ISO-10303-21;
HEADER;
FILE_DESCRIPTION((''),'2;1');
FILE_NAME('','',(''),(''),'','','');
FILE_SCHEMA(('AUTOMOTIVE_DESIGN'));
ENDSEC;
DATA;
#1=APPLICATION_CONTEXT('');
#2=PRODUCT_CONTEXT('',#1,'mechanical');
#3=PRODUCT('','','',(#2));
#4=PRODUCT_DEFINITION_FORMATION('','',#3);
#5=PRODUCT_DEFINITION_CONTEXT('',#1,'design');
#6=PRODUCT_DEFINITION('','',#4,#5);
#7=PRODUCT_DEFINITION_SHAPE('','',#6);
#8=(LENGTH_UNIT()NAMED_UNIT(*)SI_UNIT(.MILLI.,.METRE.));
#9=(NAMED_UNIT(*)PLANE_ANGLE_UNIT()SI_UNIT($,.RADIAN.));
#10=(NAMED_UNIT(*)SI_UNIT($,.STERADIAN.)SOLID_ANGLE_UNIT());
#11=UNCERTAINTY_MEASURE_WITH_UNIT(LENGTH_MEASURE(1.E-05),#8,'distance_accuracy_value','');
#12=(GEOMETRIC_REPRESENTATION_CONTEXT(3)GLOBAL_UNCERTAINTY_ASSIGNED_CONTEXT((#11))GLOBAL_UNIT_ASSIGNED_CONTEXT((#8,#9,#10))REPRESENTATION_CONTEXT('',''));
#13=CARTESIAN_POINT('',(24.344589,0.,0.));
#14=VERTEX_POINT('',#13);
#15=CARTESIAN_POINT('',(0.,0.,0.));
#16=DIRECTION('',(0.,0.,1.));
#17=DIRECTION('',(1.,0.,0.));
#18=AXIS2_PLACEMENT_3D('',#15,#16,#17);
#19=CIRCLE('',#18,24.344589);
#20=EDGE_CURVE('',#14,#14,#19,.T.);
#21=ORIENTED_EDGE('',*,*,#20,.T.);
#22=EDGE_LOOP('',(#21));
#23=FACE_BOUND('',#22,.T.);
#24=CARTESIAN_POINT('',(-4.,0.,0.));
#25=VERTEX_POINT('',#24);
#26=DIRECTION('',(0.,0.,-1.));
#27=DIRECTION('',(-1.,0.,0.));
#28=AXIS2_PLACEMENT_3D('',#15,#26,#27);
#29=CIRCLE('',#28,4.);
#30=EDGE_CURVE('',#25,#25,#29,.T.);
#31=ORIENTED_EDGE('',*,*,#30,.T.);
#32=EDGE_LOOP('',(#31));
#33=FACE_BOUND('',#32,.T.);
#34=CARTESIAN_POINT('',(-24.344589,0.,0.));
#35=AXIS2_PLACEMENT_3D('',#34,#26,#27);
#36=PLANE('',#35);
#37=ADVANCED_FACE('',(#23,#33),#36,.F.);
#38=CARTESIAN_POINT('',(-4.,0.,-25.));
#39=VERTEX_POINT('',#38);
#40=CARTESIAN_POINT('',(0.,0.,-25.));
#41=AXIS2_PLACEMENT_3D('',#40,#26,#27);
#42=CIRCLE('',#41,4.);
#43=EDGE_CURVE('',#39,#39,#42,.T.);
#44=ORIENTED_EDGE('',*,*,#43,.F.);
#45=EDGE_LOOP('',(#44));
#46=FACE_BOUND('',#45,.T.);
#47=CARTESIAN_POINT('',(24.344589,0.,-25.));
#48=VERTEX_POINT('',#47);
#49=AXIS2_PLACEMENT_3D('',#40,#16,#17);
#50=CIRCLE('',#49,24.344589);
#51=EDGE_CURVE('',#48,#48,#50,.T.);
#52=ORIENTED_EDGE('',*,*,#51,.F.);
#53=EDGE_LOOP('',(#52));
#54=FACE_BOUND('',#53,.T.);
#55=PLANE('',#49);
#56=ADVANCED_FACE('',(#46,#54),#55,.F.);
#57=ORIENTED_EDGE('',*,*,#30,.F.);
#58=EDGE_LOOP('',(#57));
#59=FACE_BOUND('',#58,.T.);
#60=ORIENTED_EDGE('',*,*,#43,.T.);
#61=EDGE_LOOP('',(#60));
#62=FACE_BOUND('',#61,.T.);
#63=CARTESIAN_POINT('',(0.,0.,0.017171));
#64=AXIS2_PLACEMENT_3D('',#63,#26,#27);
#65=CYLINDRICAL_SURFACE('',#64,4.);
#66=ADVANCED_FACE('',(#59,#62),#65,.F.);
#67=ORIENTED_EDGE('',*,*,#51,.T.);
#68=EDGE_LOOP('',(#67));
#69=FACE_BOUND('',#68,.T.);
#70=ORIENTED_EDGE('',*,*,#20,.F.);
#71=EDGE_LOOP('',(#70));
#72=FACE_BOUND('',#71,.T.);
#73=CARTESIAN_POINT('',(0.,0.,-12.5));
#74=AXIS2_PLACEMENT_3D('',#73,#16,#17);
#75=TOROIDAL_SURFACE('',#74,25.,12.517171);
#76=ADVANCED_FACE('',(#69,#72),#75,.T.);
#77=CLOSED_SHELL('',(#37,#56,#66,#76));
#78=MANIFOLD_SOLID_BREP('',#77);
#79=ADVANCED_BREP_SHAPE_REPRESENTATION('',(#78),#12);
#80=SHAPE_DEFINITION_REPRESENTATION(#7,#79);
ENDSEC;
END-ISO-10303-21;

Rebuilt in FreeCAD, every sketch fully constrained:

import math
import FreeCAD as App
import Part
import Sketcher
Q = App.Units.Quantity

doc = App.newDocument("Part")
params = doc.addObject("Spreadsheet::Sheet", "Params")
for row, (alias, value) in enumerate([
    ("sketch1_height", "25 mm"),
    ("revolution_angle", "360 deg"),
    ("sketch2_diameter", "8 mm"),
], start=1):
    params.set(f"A{row}", alias)
    params.set(f"B{row}", "=" + value)
    params.setAlias(f"B{row}", alias)

body = doc.addObject("PartDesign::Body", "Body")

sketch1 = body.newObject("Sketcher::SketchObject", "Sketch")
sketch1.AttachmentSupport = (doc.getObject("XZ_Plane"), [""])
sketch1.MapMode = "FlatFace"
sketch1.addGeometry([
    Part.LineSegment(App.Vector(0, 0, 0), App.Vector(0, -25, 0)),
    Part.LineSegment(App.Vector(0, -25, 0), App.Vector(-24.344589, -25, 0)),
    Part.ArcOfCircle(Part.Circle(App.Vector(-25, -12.5, 0), App.Vector(0, 0, 1), 12.517171), math.radians(86.998568), math.radians(273.001432)),
    Part.LineSegment(App.Vector(-24.344589, 0, 0), App.Vector(0, 0, 0)),
], False)
sketch1.addConstraint([
    Sketcher.Constraint("Coincident", 0, 2, 1, 1),
    Sketcher.Constraint("Coincident", 1, 2, 2, 2),
    Sketcher.Constraint("Coincident", 2, 1, 3, 1),
    Sketcher.Constraint("Coincident", 3, 2, 0, 1),
    Sketcher.Constraint("Vertical", 0),
    Sketcher.Constraint("Horizontal", 1),
    Sketcher.Constraint("Horizontal", 3),
    Sketcher.Constraint("Coincident", 3, 2, -1, 1),
    Sketcher.Constraint("Vertical", 1, 2, 2, 1),
    Sketcher.Constraint("DistanceY", 0, 2, 0, 1, Q("25 mm")),
    Sketcher.Constraint("DistanceX", 2, 3, -1, 1, Q("25 mm")),
    Sketcher.Constraint("Radius", 2, Q("12.517171 mm")),
])
sketch1.setExpression("Constraints[9]", "Params.sketch1_height")
revolution = body.newObject("PartDesign::Revolution", "Revolution")
revolution.Profile = sketch1
revolution.ReferenceAxis = (sketch1, ["V_Axis"])
revolution.setExpression("Angle", "Params.revolution_angle")

sketch2 = body.newObject("Sketcher::SketchObject", "Sketch001")
sketch2.AttachmentSupport = (doc.getObject("XY_Plane"), [""])
sketch2.MapMode = "FlatFace"
sketch2.AttachmentOffset = App.Placement(App.Vector(0, 0, -25), App.Rotation())
sketch2.addGeometry(Part.Circle(App.Vector(0, 0, 0), App.Vector(0, 0, 1), 4), False)
sketch2.addConstraint([
    Sketcher.Constraint("Coincident", 0, 3, -1, 1),
    Sketcher.Constraint("Diameter", 0, Q("8 mm")),
])
sketch2.setExpression("Constraints[1]", "Params.sketch2_diameter")
pocket1 = body.newObject("PartDesign::Pocket", "Pocket")
pocket1.Profile = sketch2
pocket1.Type = "ThroughAll"
pocket1.Reversed = True

doc.recompute()
